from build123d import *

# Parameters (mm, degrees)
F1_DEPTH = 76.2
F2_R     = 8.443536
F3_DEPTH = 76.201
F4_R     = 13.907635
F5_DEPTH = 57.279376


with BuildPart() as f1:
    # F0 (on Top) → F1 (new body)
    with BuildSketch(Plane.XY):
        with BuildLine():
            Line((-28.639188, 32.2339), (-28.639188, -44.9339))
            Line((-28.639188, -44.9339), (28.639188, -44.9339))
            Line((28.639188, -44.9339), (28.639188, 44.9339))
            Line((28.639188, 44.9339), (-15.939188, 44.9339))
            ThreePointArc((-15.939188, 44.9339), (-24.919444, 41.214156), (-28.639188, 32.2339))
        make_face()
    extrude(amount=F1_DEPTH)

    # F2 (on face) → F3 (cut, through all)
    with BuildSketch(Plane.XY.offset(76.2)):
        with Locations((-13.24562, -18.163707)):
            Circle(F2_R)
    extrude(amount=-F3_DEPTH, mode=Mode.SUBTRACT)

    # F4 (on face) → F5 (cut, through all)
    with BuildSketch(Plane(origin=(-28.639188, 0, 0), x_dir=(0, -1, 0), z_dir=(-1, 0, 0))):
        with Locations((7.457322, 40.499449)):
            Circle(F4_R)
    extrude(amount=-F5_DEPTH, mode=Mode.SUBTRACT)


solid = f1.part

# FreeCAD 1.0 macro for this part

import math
import FreeCAD as App
import Part
import Sketcher
from FreeCAD import Vector
Q = App.Units.Quantity

doc = App.newDocument("Part")
params = doc.addObject("Spreadsheet::Sheet", "Params")
for row, (alias, value) in enumerate([
    ("sketch1_radius", "0.5 in"),
    ("pad1_length", "3 in"),
], start=1):
    params.set(f"A{row}", alias)
    params.set(f"B{row}", "=" + value)
    params.setAlias(f"B{row}", alias)

body = doc.addObject("PartDesign::Body", "Body")

# Sketch on XY plane
sketch1 = doc.addObject("Sketcher::SketchObject", "Sketch")
body.addObject(sketch1)
sketch1.AttachmentSupport = (doc.XY_Plane, [""])
sketch1.MapMode = "FlatFace"
sketch1.addGeometry([
    Part.LineSegment(Vector(-29, 32, 0), Vector(-29, -45, 0)),  # 0
    Part.LineSegment(Vector(-29, -45, 0), Vector(29, -45, 0)),  # 1
    Part.LineSegment(Vector(29, -45, 0), Vector(29, 45, 0)),  # 2
    Part.LineSegment(Vector(29, 45, 0), Vector(-16, 45, 0)),  # 3
    Part.ArcOfCircle(Part.Circle(Vector(-16, 32, 0), Vector(0, 0, 1), 13), math.radians(90), math.radians(180)),  # 4
], False)
sketch1.addConstraint([
    Sketcher.Constraint("Coincident", 0, 2, 1, 1),
    Sketcher.Constraint("Coincident", 1, 2, 2, 1),
    Sketcher.Constraint("Coincident", 2, 2, 3, 1),
    Sketcher.Constraint("Tangent", 3, 2, 4, 1),
    Sketcher.Constraint("Tangent", 4, 2, 0, 1),
    Sketcher.Constraint("Vertical", 0),
    Sketcher.Constraint("Horizontal", 1),
    Sketcher.Constraint("Vertical", 2),
    Sketcher.Constraint("Horizontal", 3),
    Sketcher.Constraint("Symmetric", 0, 2, 2, 2, -1, 1),
    Sketcher.Constraint("Radius", 4, Q("0.5 in")),
    Sketcher.Constraint("DistanceY", 0, 2, 0, 1, Q("77.1678 mm")),
    Sketcher.Constraint("DistanceX", 1, 1, 1, 2, Q("57.278376 mm")),
])
sketch1.setExpression("Constraints[10]", "Params.sketch1_radius")
pad1 = doc.addObject("PartDesign::Pad", "Pad")
body.addObject(pad1)
pad1.Profile = sketch1
pad1.setExpression("Length", "Params.pad1_length")

# Sketch on XY plane
sketch2 = doc.addObject("Sketcher::SketchObject", "Sketch001")
body.addObject(sketch2)
sketch2.AttachmentSupport = (doc.XY_Plane, [""])
sketch2.MapMode = "FlatFace"
sketch2.AttachmentOffset = App.Placement(Vector(0, 0, 3 * 25.4), App.Rotation())
sketch2.addGeometry(Part.Circle(Vector(-13, -18, 0), Vector(0, 0, 1), 8), False)
sketch2.addConstraint([
    Sketcher.Constraint("Diameter", 0, Q("16.887072 mm")),
    Sketcher.Constraint("DistanceX", 0, 3, -1, 1, Q("13.24562 mm")),
    Sketcher.Constraint("DistanceY", 0, 3, -1, 1, Q("18.163707 mm")),
])
pocket1 = doc.addObject("PartDesign::Pocket", "Pocket")
body.addObject(pocket1)
pocket1.Profile = sketch2
pocket1.Type = "ThroughAll"

# Sketch on YZ plane
sketch3 = doc.addObject("Sketcher::SketchObject", "Sketch002")
body.addObject(sketch3)
sketch3.AttachmentSupport = (doc.YZ_Plane, [""])
sketch3.MapMode = "FlatFace"
sketch3.AttachmentOffset = App.Placement(Vector(0, 0, -28.639188), App.Rotation())
sketch3.addGeometry(Part.Circle(Vector(-7, 40, 0), Vector(0, 0, 1), 14), False)
sketch3.addConstraint([
    Sketcher.Constraint("Diameter", 0, Q("27.81527 mm")),
    Sketcher.Constraint("DistanceX", 0, 3, -1, 1, Q("7.457322 mm")),
    Sketcher.Constraint("DistanceY", -1, 1, 0, 3, Q("40.499449 mm")),
])
pocket2 = doc.addObject("PartDesign::Pocket", "Pocket001")
body.addObject(pocket2)
pocket2.Profile = sketch3
pocket2.Type = "ThroughAll"
pocket2.Reversed = True

doc.recompute()
